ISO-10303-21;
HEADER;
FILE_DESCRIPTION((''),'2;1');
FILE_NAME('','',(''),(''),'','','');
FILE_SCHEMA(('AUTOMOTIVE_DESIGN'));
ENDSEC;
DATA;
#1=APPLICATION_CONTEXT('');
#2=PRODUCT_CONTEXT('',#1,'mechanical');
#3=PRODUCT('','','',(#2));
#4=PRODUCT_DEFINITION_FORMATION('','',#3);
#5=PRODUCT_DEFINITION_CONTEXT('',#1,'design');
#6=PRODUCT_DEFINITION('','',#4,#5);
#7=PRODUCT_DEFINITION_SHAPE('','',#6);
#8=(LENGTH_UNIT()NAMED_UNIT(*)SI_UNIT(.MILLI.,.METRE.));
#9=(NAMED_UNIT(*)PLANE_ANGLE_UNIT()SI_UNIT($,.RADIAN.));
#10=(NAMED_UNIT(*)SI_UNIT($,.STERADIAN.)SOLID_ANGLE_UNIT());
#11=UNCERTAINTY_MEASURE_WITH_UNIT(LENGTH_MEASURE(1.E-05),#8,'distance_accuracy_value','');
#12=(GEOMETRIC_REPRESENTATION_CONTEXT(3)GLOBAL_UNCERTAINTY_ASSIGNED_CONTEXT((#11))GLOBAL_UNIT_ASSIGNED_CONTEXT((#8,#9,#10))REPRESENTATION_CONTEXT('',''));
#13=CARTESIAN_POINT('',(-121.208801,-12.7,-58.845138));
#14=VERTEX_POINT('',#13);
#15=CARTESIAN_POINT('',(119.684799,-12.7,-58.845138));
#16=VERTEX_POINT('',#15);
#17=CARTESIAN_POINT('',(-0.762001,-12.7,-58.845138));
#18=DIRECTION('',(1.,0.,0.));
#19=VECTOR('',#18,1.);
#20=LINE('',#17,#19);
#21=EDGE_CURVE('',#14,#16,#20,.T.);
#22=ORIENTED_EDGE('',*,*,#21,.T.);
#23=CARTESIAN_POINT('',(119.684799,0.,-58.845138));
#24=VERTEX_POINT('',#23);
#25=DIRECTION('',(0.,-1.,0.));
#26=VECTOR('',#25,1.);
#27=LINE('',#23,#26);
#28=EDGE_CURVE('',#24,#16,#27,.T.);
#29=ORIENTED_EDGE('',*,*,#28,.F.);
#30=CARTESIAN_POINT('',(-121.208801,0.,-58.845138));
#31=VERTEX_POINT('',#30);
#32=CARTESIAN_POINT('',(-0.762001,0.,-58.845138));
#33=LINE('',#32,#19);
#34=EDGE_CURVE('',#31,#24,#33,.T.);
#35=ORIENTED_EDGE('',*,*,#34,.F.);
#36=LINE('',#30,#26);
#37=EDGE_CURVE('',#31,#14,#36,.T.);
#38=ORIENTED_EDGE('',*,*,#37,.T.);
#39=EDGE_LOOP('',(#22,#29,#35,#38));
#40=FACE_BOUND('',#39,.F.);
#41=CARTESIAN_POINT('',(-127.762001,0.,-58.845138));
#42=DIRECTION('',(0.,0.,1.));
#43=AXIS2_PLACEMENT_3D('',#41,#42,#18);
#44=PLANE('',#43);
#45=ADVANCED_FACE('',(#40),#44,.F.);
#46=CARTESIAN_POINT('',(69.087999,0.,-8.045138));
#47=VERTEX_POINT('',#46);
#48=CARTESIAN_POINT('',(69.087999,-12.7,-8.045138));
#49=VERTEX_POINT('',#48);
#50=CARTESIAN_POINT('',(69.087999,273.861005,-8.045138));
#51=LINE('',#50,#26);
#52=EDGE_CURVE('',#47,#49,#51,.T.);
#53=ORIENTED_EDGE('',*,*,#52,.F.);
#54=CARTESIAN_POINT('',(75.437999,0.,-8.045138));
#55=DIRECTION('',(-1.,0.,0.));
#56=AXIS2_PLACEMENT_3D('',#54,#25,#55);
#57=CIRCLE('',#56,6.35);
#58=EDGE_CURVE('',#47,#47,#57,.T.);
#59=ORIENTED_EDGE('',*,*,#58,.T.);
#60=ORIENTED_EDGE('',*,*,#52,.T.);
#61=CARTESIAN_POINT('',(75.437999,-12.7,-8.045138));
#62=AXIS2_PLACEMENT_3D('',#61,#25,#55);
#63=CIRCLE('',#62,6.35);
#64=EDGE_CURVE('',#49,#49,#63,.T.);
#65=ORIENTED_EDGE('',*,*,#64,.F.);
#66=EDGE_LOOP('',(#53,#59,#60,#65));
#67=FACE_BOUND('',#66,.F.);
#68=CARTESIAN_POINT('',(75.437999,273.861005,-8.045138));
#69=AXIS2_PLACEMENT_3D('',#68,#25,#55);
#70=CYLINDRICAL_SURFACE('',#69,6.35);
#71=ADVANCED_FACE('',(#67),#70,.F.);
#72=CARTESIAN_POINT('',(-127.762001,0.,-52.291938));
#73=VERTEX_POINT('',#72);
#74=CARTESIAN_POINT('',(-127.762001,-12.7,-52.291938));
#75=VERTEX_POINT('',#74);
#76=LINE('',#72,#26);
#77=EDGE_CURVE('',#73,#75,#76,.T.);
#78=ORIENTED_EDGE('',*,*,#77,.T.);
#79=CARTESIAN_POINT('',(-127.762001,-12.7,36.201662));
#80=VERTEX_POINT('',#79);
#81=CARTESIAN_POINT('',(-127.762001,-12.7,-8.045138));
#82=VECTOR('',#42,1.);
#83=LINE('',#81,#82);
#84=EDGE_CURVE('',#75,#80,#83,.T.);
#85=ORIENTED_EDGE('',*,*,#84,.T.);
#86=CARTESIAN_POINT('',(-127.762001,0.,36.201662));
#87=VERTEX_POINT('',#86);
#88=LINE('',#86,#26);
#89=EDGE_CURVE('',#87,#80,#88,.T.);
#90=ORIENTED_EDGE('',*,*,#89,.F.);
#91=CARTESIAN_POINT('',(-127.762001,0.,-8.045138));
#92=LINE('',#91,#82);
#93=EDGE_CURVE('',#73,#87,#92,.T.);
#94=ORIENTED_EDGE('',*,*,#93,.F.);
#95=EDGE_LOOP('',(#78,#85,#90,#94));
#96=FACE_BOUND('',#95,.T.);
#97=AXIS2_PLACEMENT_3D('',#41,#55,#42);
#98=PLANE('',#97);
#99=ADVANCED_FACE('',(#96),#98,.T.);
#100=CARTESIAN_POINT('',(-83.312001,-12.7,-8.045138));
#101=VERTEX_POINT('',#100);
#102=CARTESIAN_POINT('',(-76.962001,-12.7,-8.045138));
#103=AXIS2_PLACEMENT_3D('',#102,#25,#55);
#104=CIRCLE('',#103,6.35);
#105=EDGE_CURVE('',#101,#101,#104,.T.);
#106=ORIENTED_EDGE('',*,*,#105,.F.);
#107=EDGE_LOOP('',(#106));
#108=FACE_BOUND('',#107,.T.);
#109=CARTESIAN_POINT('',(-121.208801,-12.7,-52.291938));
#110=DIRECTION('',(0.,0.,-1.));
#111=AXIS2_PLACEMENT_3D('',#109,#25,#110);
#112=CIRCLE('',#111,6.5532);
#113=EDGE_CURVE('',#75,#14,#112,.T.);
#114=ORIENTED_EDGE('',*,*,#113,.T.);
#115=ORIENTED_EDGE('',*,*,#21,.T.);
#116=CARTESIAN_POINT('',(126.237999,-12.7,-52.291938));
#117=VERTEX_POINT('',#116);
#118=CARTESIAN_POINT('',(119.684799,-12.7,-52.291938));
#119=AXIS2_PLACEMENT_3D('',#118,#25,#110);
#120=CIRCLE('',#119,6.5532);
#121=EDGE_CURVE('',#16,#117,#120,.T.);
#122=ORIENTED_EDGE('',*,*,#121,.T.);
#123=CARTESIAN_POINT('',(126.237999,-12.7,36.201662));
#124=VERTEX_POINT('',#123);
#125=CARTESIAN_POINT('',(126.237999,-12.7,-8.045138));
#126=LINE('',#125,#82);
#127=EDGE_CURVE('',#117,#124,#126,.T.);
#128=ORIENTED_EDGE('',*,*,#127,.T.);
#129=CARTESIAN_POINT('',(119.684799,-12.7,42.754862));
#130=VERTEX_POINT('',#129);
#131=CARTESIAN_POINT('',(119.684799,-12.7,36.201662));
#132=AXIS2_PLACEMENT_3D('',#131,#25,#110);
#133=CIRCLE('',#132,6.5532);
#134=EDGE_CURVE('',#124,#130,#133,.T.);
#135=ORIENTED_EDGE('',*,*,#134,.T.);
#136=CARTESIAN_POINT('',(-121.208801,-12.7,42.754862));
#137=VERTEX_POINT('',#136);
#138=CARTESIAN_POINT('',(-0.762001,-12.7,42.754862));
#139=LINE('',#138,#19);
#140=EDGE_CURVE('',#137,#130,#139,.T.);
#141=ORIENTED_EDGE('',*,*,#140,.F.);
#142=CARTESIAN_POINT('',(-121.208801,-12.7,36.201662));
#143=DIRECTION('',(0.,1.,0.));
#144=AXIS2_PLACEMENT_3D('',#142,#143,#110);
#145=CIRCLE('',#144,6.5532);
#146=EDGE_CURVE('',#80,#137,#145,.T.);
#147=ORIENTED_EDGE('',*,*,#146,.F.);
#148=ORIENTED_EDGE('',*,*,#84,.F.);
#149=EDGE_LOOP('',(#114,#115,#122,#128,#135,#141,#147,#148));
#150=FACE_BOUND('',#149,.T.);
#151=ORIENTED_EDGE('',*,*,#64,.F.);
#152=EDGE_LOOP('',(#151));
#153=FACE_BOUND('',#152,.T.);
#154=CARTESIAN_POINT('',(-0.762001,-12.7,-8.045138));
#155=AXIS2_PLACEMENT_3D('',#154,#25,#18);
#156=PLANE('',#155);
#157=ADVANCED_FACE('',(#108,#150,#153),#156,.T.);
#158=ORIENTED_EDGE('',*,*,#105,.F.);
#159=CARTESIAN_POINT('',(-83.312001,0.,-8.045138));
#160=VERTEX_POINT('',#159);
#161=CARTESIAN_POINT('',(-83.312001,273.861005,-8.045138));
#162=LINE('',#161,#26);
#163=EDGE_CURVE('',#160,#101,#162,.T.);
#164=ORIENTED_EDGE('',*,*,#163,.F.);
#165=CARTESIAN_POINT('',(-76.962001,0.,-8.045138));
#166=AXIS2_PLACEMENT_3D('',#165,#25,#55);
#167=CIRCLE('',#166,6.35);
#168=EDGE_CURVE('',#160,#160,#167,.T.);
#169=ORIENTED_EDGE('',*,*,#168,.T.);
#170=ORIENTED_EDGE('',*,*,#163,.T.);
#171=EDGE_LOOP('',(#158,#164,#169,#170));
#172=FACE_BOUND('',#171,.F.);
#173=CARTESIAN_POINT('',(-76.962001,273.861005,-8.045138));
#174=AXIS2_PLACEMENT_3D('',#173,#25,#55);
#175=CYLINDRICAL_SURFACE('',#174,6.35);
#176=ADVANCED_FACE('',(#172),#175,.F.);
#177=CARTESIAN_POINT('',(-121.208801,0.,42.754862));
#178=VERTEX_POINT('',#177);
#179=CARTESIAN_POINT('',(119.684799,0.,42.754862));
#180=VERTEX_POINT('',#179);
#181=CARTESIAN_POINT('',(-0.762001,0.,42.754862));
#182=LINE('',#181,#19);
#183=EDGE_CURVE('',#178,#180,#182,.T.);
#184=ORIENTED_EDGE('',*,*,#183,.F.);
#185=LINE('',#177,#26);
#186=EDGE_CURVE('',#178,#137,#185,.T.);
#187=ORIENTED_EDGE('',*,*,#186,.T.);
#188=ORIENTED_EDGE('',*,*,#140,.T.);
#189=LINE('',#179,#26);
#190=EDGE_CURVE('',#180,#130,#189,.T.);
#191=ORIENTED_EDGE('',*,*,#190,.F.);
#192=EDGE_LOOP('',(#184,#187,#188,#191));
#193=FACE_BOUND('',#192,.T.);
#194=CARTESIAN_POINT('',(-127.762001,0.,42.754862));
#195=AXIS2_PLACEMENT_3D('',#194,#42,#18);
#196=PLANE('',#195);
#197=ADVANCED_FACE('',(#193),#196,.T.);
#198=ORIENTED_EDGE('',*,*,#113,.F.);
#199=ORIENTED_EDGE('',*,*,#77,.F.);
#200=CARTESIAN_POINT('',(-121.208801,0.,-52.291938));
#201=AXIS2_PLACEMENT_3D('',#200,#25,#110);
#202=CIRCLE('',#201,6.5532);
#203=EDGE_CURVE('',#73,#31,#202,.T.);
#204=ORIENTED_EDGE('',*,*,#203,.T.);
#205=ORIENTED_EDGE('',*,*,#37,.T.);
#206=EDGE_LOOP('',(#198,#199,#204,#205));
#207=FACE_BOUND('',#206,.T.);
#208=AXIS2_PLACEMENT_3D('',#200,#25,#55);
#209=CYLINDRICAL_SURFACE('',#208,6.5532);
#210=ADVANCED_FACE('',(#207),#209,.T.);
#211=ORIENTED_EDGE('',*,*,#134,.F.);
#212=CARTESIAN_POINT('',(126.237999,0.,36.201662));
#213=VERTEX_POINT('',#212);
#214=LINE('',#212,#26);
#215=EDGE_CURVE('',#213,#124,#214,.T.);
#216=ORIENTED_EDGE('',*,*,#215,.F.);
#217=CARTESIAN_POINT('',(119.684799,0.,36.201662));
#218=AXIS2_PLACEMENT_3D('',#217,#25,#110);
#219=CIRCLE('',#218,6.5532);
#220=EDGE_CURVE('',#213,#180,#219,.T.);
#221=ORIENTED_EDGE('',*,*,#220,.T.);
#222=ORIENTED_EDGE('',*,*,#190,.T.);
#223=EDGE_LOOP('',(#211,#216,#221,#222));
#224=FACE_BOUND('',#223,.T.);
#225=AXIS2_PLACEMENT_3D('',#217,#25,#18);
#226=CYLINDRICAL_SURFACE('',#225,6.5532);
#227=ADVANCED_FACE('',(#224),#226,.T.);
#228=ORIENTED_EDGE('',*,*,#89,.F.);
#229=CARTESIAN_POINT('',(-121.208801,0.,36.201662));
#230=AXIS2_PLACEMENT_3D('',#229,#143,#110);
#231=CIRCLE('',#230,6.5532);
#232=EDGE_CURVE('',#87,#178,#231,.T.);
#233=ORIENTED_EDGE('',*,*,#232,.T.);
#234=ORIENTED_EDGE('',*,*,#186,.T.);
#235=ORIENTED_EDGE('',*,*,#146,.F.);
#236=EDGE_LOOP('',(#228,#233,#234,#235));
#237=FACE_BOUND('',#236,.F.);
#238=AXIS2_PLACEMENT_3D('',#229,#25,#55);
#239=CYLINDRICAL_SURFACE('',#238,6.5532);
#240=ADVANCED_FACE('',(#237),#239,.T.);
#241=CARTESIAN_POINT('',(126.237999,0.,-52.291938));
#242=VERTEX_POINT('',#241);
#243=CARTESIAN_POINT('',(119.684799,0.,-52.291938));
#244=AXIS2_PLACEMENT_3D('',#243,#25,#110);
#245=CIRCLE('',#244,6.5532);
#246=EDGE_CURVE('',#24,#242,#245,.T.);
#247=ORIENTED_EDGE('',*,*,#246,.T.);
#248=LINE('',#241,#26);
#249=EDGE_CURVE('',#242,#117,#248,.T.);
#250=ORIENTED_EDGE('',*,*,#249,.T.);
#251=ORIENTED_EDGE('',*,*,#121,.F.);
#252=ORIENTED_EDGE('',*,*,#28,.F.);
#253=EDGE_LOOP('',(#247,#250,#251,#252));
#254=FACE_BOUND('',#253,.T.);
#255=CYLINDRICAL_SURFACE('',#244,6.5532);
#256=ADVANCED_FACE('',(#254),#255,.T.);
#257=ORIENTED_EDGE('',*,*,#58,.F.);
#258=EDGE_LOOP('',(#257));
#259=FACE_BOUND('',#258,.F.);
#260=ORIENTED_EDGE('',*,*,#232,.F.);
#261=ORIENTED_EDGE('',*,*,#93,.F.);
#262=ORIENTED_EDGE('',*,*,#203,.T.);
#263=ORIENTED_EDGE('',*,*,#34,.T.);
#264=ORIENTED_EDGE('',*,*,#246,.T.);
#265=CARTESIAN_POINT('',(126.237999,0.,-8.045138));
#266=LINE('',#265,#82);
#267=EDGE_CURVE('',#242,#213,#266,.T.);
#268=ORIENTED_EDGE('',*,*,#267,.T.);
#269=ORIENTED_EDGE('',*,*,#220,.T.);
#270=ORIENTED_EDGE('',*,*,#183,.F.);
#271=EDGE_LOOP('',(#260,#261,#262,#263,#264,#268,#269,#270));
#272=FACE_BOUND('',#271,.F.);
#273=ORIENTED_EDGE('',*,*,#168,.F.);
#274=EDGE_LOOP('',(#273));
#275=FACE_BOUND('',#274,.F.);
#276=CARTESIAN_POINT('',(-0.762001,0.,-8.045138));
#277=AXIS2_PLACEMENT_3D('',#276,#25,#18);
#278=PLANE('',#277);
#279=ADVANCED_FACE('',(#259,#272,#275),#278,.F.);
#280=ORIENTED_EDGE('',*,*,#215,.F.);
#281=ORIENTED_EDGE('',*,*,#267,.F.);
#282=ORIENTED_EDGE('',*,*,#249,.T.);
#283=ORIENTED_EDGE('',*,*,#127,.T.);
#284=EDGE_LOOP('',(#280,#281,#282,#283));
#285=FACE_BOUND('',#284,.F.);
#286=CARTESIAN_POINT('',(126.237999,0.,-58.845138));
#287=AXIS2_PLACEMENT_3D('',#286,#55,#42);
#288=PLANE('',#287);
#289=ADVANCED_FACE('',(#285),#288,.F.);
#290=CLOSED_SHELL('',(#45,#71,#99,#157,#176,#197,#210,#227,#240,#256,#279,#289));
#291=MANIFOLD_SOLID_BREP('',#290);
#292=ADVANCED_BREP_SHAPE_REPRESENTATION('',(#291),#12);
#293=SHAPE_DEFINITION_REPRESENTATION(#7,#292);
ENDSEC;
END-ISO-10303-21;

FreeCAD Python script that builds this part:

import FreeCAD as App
import Part
import Sketcher

V = App.Vector
Q = App.Units.Quantity


def edges_at(feature, points):
    """Names of the edges that pass closest to the given points."""
    edges = feature.Shape.Edges
    near = lambda p: min(range(len(edges)), key=lambda i: edges[i].distToShape(Part.Vertex(*p))[0])
    return sorted({f"Edge{near(p) + 1}" for p in points})


def add_polygon(sketch, points):
    """Adds a closed chain of lines whose ends are joined by coincident constraints."""
    first, n = sketch.GeometryCount, len(points)
    for a, b in zip(points, points[1:] + points[:1]):
        sketch.addGeometry(Part.LineSegment(App.Vector(*a, 0), App.Vector(*b, 0)), False)
    for i in range(n):
        sketch.addConstraint(Sketcher.Constraint("Coincident", first + i, 2, first + (i + 1) % n, 1))

doc = App.newDocument("Part")
body = doc.addObject("PartDesign::Body", "Body")

sketch1 = body.newObject("Sketcher::SketchObject", "Sketch")
sketch1.AttachmentSupport = (doc.getObject("XZ_Plane"), [""])
sketch1.MapMode = "FlatFace"
add_polygon(sketch1, [(-128, 43), (-128, -59), (126, -59), (126, 43)])
sketch1.addConstraint([
    Sketcher.Constraint("Vertical", 0),
    Sketcher.Constraint("Horizontal", 1),
    Sketcher.Constraint("Vertical", 2),
    Sketcher.Constraint("Horizontal", 3),
    Sketcher.Constraint("DistanceX", 1, 1, 1, 2, Q("10 in")),
    Sketcher.Constraint("DistanceY", 0, 2, 0, 1, Q("4 in")),
    Sketcher.Constraint("DistanceX", 0, 2, -1, 1, Q("5.03 in")),
    Sketcher.Constraint("DistanceY", 0, 2, -1, 1, 58.845138),
])
pad1 = body.newObject("PartDesign::Pad", "Pad")
pad1.Profile = sketch1
pad1.Length = Q("0.5 in")
doc.recompute()

fillet = body.newObject("PartDesign::Fillet", "Fillet")
fillet.Base = (pad1, edges_at(pad1, [
    (-127.762, -6.35, 42.755),
    (-127.762, -6.35, -58.845),
    (126.238, -6.35, -58.845),
    (126.238, -6.35, 42.755),
]))
fillet.Radius = Q("0.258 in")

sketch2 = body.newObject("Sketcher::SketchObject", "Sketch001")
sketch2.AttachmentSupport = (doc.getObject("XZ_Plane"), [""])
sketch2.MapMode = "FlatFace"
sketch2.addGeometry([
    Part.Circle(V(-77, -8, 0), V(0, 0, 1), 6),
    Part.Circle(V(75, -8, 0), V(0, 0, 1), 6),
], False)
sketch2.addConstraint([
    Sketcher.Constraint("Equal", 0, 1),
    Sketcher.Constraint("Horizontal", 0, 3, 1, 3),
    Sketcher.Constraint("Diameter", 0, Q("0.5 in")),
    Sketcher.Constraint("DistanceX", 0, 3, 1, 3, Q("6 in")),
    Sketcher.Constraint("DistanceX", 0, 3, -1, 1, Q("3.03 in")),
    Sketcher.Constraint("DistanceY", 0, 3, -1, 1, 8.045138),
])
doc.recompute()
hole = body.newObject("PartDesign::Hole", "Hole")
hole.Profile = sketch2
hole.ThreadType = "None"
hole.Diameter = Q("0.5 in")
hole.DepthType = "ThroughAll"
hole.Reversed = True

doc.recompute()
